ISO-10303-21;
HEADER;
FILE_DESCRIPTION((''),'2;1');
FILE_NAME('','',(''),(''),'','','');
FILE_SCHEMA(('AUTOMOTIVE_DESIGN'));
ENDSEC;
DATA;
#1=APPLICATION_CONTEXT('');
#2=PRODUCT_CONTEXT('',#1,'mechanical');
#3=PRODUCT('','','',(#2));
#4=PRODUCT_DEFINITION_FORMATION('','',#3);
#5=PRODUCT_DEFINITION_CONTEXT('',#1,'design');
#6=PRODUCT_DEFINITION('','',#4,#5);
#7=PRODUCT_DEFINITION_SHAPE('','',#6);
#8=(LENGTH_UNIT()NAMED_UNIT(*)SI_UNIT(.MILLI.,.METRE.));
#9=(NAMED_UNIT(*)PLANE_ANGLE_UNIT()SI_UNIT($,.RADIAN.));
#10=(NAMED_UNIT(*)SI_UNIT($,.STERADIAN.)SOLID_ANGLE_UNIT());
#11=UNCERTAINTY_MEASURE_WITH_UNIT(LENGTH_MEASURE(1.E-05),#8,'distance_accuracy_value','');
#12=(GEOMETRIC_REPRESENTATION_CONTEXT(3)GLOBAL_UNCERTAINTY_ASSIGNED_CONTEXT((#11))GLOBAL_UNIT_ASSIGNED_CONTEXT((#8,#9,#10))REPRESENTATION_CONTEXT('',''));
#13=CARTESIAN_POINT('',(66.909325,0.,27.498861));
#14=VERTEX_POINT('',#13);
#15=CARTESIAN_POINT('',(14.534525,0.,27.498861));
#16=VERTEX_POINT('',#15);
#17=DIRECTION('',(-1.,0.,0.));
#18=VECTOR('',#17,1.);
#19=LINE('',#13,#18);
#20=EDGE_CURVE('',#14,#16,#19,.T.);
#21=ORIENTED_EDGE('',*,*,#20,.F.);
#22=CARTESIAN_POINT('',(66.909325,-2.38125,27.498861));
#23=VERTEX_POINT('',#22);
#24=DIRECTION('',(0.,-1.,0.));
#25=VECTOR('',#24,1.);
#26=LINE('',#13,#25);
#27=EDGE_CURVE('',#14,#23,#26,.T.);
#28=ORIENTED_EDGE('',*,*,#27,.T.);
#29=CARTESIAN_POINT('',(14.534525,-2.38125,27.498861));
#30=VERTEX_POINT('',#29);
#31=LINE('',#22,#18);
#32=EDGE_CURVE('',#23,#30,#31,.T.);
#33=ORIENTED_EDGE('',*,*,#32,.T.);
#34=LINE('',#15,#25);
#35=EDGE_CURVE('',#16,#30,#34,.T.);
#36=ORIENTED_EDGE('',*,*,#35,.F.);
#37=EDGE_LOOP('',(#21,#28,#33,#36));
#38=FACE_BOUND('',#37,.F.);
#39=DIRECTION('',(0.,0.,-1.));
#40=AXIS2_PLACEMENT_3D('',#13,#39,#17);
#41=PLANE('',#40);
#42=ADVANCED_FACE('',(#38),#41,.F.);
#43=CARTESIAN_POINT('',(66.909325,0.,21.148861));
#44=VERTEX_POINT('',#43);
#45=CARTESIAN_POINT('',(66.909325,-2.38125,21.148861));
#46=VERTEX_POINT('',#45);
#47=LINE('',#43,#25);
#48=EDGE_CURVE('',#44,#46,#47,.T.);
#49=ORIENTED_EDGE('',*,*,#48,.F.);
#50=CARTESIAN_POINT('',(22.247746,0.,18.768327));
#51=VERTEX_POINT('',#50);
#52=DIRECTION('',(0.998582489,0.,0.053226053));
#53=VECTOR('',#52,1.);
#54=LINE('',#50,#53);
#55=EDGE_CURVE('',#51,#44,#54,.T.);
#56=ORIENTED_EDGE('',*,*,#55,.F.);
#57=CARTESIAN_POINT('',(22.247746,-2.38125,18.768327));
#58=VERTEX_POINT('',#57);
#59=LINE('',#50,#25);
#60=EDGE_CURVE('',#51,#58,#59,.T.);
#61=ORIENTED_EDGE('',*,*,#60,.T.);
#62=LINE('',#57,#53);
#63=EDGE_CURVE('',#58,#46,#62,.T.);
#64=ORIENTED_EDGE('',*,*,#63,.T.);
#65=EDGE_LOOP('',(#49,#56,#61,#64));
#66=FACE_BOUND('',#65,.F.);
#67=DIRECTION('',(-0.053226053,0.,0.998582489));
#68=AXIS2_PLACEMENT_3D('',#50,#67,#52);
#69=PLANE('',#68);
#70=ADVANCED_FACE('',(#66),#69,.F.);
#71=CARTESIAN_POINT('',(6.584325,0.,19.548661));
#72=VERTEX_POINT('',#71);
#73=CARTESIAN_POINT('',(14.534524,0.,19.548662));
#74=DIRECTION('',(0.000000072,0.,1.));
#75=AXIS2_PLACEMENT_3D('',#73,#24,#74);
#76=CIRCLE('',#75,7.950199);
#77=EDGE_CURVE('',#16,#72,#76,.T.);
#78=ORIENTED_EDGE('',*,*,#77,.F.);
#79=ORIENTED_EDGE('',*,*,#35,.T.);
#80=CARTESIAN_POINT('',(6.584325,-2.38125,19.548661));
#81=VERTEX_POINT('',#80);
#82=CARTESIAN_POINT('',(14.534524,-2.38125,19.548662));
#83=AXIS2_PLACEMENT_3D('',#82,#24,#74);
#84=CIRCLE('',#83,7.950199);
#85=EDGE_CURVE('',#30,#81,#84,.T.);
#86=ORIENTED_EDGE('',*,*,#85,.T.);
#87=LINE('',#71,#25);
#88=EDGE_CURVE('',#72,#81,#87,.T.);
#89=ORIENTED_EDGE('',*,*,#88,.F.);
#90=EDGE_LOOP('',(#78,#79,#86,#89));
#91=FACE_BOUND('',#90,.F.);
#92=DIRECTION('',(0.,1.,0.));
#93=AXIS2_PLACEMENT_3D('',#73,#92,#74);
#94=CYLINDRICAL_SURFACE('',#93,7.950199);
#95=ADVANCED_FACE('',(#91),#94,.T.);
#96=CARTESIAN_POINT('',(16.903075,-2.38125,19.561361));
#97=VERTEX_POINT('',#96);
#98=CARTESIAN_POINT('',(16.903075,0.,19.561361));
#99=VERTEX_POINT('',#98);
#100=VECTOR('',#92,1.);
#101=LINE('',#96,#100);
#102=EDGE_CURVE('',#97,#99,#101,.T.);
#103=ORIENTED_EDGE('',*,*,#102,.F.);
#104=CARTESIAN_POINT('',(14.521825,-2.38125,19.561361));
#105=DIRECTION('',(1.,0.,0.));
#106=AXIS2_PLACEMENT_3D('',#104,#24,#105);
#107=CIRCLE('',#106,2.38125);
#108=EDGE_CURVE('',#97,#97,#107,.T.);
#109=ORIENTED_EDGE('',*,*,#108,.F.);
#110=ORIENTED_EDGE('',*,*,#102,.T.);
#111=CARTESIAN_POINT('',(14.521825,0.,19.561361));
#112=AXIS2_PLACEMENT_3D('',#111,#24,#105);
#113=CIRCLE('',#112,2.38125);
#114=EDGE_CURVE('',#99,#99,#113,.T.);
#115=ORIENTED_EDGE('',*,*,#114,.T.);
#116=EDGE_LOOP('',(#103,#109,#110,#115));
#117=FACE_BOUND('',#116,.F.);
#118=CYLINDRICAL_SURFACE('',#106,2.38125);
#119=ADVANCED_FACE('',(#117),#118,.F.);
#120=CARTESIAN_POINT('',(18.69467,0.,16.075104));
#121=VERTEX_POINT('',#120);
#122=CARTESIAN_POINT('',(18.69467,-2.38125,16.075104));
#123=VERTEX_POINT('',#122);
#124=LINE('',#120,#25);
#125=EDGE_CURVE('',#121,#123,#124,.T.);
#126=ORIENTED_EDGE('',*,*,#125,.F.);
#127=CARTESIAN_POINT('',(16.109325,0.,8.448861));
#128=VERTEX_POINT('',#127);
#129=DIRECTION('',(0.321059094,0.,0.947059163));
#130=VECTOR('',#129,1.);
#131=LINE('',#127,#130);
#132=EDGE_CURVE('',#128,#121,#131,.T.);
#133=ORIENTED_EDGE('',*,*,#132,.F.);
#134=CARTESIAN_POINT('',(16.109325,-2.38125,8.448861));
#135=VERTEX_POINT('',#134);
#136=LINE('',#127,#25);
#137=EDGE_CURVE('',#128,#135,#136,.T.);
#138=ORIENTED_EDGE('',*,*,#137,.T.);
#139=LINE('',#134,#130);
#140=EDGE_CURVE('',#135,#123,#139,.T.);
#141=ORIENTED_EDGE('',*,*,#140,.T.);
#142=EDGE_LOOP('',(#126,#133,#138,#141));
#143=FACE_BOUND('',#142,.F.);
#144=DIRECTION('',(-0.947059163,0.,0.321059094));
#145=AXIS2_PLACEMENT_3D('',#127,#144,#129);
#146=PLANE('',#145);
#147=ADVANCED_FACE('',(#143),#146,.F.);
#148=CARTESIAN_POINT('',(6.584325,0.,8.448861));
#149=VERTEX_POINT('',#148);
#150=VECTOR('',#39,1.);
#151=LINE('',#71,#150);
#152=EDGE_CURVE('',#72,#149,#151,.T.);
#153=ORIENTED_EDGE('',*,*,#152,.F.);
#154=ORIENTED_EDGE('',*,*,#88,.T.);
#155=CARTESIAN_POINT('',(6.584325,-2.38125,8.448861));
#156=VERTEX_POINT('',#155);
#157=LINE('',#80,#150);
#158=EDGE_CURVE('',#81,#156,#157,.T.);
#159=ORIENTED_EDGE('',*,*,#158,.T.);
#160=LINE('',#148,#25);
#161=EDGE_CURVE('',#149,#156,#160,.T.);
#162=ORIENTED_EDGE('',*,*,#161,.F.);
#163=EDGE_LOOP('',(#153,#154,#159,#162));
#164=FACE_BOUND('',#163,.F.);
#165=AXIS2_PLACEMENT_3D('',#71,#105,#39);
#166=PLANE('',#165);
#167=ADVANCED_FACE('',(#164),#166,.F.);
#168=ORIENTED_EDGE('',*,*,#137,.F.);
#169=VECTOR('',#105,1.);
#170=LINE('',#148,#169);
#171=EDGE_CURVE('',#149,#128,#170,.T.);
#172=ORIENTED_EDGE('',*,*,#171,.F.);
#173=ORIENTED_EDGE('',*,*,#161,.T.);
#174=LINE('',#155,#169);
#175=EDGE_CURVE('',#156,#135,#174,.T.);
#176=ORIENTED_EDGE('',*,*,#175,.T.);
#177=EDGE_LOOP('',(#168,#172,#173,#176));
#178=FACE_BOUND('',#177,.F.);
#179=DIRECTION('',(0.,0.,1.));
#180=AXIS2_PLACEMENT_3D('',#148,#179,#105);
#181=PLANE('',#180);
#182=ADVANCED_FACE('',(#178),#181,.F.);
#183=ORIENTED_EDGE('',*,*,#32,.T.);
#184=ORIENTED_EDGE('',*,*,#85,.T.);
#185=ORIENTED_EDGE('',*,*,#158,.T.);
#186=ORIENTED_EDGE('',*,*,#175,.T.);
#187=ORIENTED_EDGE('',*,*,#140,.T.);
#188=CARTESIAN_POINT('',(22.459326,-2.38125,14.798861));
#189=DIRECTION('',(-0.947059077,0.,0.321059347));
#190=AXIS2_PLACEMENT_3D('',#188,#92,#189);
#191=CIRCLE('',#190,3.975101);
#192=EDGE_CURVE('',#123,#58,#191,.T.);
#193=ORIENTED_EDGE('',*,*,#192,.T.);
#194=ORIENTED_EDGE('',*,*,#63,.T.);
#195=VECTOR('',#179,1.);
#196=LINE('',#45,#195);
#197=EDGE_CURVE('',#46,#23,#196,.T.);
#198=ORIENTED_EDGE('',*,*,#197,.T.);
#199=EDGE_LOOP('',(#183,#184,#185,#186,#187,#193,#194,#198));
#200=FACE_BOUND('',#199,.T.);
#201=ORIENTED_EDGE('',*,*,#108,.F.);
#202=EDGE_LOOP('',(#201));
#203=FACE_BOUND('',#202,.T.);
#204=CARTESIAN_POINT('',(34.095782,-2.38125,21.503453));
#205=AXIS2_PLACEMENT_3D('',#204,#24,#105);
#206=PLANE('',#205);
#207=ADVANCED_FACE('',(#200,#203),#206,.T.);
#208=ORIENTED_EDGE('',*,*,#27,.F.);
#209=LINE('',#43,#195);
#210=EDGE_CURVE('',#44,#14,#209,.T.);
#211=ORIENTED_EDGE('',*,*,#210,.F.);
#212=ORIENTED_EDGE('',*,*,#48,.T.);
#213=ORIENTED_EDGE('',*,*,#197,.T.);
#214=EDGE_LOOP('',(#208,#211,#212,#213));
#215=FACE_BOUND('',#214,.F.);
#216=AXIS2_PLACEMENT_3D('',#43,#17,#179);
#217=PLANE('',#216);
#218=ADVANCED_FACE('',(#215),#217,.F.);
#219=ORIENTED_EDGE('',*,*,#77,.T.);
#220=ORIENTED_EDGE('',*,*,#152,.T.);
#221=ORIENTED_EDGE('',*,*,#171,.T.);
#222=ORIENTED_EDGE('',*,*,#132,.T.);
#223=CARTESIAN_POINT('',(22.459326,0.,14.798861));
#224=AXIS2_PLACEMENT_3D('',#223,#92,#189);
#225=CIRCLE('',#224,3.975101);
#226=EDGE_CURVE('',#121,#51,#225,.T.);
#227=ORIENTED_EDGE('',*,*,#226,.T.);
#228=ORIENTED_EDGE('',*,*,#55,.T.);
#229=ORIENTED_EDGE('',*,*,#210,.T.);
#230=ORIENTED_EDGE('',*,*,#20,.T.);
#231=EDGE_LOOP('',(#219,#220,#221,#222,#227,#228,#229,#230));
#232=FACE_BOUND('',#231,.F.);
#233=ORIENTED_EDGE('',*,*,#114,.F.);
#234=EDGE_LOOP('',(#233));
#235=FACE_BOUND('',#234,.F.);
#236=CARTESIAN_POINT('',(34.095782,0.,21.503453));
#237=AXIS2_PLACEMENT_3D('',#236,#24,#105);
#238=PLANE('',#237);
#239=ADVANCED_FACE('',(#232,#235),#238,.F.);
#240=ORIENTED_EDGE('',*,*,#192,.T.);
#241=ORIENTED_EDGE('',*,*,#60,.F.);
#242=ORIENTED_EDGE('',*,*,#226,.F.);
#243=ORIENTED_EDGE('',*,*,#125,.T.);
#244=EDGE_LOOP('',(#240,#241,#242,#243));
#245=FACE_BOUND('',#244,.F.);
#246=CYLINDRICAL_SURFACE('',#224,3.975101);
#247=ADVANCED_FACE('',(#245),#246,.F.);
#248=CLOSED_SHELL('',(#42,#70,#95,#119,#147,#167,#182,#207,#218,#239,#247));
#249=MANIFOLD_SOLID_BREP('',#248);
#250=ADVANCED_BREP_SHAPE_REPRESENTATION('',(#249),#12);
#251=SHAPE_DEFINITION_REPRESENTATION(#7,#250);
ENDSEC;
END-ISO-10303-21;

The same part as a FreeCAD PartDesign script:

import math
import FreeCAD as App
import Part
import Sketcher
Q = App.Units.Quantity

doc = App.newDocument("Part")
body = doc.addObject("PartDesign::Body", "Body")

# Sketch on XZ plane
sketch1 = body.newObject("Sketcher::SketchObject", "Sketch")
sketch1.AttachmentSupport = (doc.getObject("XZ_Plane"), [""])
sketch1.MapMode = "FlatFace"
sketch1.addGeometry(Part.LineSegment(App.Vector(66.9, 27.5, 0), App.Vector(14.5, 27.5, 0)), False)
sketch1.addGeometry(Part.ArcOfCircle(Part.Circle(App.Vector(14.5, 19.5, 0), App.Vector(0, 0, 1), 8), math.radians(90), math.radians(180)), False)
sketch1.addGeometry(Part.LineSegment(App.Vector(6.6, 19.5, 0), App.Vector(6.6, 8.4, 0)), False)
sketch1.addGeometry(Part.LineSegment(App.Vector(6.6, 8.4, 0), App.Vector(16.1, 8.4, 0)), False)
sketch1.addGeometry(Part.LineSegment(App.Vector(16.1, 8.4, 0), App.Vector(18.7, 16.1, 0)), False)
sketch1.addGeometry(Part.ArcOfCircle(Part.Circle(App.Vector(22.5, 14.8, 0), App.Vector(0, 0, 1), 4), math.radians(93), math.radians(161)), False)
sketch1.addGeometry(Part.LineSegment(App.Vector(22.2, 18.8, 0), App.Vector(66.9, 21.1, 0)), False)
sketch1.addGeometry(Part.LineSegment(App.Vector(66.9, 21.1, 0), App.Vector(66.9, 27.5, 0)), False)
sketch1.addConstraint(Sketcher.Constraint("Tangent", 0, 2, 1, 1))
sketch1.addConstraint(Sketcher.Constraint("Tangent", 1, 2, 2, 1))
sketch1.addConstraint(Sketcher.Constraint("Coincident", 2, 2, 3, 1))
sketch1.addConstraint(Sketcher.Constraint("Coincident", 3, 2, 4, 1))
sketch1.addConstraint(Sketcher.Constraint("Tangent", 4, 2, 5, 2))
sketch1.addConstraint(Sketcher.Constraint("Tangent", 5, 1, 6, 1))
sketch1.addConstraint(Sketcher.Constraint("Coincident", 6, 2, 7, 1))
sketch1.addConstraint(Sketcher.Constraint("Coincident", 7, 2, 0, 1))
sketch1.addConstraint(Sketcher.Constraint("Horizontal", 0))
sketch1.addConstraint(Sketcher.Constraint("Vertical", 2))
sketch1.addConstraint(Sketcher.Constraint("Horizontal", 3))
sketch1.addConstraint(Sketcher.Constraint("Vertical", 7))
sketch1.addConstraint(Sketcher.Constraint("Radius", 1, Q("0.313 in")))
sketch1.addConstraint(Sketcher.Constraint("DistanceX", 3, 2, 6, 2, Q("2 in")))
sketch1.addConstraint(Sketcher.Constraint("DistanceY", 7, 1, 7, 2, Q("0.25 in")))
sketch1.addConstraint(Sketcher.Constraint("Radius", 5, Q("0.1565 in")))
sketch1.addConstraint(Sketcher.Constraint("DistanceY", 5, 3, 0, 2, Q("0.5 in")))
sketch1.addConstraint(Sketcher.Constraint("DistanceY", 3, 2, 6, 2, Q("0.5 in")))
sketch1.addConstraint(Sketcher.Constraint("DistanceX", 0, 2, 0, 1, Q("2.062 in")))
sketch1.addConstraint(Sketcher.Constraint("DistanceX", 3, 2, 5, 3, Q("0.25 in")))
sketch1.addConstraint(Sketcher.Constraint("DistanceY", -1, 1, 1, 3, 19.548662))
sketch1.addConstraint(Sketcher.Constraint("DistanceX", -1, 1, 4, 2, 18.69467))
pad1 = body.newObject("PartDesign::Pad", "Pad")
pad1.Profile = sketch1
pad1.Length = Q("0.09375 in")

# Sketch on XZ plane
sketch2 = body.newObject("Sketcher::SketchObject", "Sketch001")
sketch2.AttachmentSupport = (doc.getObject("XZ_Plane"), [""])
sketch2.MapMode = "FlatFace"
sketch2.AttachmentOffset = App.Placement(App.Vector(0, 0, 0.09375 * 25.4), App.Rotation())
sketch2.addGeometry(Part.Circle(App.Vector(14.5, 19.6, 0), App.Vector(0, 0, 1), 2.4), False)
sketch2.addConstraint(Sketcher.Constraint("Diameter", 0, Q("0.1875 in")))
sketch2.addConstraint(Sketcher.Constraint("DistanceY", -1, 1, 0, 3, 19.561361))
sketch2.addConstraint(Sketcher.Constraint("DistanceX", -1, 1, 0, 3, 14.521825))
pocket1 = body.newObject("PartDesign::Pocket", "Pocket")
pocket1.Profile = sketch2
pocket1.Type = "ThroughAll"

doc.recompute()
